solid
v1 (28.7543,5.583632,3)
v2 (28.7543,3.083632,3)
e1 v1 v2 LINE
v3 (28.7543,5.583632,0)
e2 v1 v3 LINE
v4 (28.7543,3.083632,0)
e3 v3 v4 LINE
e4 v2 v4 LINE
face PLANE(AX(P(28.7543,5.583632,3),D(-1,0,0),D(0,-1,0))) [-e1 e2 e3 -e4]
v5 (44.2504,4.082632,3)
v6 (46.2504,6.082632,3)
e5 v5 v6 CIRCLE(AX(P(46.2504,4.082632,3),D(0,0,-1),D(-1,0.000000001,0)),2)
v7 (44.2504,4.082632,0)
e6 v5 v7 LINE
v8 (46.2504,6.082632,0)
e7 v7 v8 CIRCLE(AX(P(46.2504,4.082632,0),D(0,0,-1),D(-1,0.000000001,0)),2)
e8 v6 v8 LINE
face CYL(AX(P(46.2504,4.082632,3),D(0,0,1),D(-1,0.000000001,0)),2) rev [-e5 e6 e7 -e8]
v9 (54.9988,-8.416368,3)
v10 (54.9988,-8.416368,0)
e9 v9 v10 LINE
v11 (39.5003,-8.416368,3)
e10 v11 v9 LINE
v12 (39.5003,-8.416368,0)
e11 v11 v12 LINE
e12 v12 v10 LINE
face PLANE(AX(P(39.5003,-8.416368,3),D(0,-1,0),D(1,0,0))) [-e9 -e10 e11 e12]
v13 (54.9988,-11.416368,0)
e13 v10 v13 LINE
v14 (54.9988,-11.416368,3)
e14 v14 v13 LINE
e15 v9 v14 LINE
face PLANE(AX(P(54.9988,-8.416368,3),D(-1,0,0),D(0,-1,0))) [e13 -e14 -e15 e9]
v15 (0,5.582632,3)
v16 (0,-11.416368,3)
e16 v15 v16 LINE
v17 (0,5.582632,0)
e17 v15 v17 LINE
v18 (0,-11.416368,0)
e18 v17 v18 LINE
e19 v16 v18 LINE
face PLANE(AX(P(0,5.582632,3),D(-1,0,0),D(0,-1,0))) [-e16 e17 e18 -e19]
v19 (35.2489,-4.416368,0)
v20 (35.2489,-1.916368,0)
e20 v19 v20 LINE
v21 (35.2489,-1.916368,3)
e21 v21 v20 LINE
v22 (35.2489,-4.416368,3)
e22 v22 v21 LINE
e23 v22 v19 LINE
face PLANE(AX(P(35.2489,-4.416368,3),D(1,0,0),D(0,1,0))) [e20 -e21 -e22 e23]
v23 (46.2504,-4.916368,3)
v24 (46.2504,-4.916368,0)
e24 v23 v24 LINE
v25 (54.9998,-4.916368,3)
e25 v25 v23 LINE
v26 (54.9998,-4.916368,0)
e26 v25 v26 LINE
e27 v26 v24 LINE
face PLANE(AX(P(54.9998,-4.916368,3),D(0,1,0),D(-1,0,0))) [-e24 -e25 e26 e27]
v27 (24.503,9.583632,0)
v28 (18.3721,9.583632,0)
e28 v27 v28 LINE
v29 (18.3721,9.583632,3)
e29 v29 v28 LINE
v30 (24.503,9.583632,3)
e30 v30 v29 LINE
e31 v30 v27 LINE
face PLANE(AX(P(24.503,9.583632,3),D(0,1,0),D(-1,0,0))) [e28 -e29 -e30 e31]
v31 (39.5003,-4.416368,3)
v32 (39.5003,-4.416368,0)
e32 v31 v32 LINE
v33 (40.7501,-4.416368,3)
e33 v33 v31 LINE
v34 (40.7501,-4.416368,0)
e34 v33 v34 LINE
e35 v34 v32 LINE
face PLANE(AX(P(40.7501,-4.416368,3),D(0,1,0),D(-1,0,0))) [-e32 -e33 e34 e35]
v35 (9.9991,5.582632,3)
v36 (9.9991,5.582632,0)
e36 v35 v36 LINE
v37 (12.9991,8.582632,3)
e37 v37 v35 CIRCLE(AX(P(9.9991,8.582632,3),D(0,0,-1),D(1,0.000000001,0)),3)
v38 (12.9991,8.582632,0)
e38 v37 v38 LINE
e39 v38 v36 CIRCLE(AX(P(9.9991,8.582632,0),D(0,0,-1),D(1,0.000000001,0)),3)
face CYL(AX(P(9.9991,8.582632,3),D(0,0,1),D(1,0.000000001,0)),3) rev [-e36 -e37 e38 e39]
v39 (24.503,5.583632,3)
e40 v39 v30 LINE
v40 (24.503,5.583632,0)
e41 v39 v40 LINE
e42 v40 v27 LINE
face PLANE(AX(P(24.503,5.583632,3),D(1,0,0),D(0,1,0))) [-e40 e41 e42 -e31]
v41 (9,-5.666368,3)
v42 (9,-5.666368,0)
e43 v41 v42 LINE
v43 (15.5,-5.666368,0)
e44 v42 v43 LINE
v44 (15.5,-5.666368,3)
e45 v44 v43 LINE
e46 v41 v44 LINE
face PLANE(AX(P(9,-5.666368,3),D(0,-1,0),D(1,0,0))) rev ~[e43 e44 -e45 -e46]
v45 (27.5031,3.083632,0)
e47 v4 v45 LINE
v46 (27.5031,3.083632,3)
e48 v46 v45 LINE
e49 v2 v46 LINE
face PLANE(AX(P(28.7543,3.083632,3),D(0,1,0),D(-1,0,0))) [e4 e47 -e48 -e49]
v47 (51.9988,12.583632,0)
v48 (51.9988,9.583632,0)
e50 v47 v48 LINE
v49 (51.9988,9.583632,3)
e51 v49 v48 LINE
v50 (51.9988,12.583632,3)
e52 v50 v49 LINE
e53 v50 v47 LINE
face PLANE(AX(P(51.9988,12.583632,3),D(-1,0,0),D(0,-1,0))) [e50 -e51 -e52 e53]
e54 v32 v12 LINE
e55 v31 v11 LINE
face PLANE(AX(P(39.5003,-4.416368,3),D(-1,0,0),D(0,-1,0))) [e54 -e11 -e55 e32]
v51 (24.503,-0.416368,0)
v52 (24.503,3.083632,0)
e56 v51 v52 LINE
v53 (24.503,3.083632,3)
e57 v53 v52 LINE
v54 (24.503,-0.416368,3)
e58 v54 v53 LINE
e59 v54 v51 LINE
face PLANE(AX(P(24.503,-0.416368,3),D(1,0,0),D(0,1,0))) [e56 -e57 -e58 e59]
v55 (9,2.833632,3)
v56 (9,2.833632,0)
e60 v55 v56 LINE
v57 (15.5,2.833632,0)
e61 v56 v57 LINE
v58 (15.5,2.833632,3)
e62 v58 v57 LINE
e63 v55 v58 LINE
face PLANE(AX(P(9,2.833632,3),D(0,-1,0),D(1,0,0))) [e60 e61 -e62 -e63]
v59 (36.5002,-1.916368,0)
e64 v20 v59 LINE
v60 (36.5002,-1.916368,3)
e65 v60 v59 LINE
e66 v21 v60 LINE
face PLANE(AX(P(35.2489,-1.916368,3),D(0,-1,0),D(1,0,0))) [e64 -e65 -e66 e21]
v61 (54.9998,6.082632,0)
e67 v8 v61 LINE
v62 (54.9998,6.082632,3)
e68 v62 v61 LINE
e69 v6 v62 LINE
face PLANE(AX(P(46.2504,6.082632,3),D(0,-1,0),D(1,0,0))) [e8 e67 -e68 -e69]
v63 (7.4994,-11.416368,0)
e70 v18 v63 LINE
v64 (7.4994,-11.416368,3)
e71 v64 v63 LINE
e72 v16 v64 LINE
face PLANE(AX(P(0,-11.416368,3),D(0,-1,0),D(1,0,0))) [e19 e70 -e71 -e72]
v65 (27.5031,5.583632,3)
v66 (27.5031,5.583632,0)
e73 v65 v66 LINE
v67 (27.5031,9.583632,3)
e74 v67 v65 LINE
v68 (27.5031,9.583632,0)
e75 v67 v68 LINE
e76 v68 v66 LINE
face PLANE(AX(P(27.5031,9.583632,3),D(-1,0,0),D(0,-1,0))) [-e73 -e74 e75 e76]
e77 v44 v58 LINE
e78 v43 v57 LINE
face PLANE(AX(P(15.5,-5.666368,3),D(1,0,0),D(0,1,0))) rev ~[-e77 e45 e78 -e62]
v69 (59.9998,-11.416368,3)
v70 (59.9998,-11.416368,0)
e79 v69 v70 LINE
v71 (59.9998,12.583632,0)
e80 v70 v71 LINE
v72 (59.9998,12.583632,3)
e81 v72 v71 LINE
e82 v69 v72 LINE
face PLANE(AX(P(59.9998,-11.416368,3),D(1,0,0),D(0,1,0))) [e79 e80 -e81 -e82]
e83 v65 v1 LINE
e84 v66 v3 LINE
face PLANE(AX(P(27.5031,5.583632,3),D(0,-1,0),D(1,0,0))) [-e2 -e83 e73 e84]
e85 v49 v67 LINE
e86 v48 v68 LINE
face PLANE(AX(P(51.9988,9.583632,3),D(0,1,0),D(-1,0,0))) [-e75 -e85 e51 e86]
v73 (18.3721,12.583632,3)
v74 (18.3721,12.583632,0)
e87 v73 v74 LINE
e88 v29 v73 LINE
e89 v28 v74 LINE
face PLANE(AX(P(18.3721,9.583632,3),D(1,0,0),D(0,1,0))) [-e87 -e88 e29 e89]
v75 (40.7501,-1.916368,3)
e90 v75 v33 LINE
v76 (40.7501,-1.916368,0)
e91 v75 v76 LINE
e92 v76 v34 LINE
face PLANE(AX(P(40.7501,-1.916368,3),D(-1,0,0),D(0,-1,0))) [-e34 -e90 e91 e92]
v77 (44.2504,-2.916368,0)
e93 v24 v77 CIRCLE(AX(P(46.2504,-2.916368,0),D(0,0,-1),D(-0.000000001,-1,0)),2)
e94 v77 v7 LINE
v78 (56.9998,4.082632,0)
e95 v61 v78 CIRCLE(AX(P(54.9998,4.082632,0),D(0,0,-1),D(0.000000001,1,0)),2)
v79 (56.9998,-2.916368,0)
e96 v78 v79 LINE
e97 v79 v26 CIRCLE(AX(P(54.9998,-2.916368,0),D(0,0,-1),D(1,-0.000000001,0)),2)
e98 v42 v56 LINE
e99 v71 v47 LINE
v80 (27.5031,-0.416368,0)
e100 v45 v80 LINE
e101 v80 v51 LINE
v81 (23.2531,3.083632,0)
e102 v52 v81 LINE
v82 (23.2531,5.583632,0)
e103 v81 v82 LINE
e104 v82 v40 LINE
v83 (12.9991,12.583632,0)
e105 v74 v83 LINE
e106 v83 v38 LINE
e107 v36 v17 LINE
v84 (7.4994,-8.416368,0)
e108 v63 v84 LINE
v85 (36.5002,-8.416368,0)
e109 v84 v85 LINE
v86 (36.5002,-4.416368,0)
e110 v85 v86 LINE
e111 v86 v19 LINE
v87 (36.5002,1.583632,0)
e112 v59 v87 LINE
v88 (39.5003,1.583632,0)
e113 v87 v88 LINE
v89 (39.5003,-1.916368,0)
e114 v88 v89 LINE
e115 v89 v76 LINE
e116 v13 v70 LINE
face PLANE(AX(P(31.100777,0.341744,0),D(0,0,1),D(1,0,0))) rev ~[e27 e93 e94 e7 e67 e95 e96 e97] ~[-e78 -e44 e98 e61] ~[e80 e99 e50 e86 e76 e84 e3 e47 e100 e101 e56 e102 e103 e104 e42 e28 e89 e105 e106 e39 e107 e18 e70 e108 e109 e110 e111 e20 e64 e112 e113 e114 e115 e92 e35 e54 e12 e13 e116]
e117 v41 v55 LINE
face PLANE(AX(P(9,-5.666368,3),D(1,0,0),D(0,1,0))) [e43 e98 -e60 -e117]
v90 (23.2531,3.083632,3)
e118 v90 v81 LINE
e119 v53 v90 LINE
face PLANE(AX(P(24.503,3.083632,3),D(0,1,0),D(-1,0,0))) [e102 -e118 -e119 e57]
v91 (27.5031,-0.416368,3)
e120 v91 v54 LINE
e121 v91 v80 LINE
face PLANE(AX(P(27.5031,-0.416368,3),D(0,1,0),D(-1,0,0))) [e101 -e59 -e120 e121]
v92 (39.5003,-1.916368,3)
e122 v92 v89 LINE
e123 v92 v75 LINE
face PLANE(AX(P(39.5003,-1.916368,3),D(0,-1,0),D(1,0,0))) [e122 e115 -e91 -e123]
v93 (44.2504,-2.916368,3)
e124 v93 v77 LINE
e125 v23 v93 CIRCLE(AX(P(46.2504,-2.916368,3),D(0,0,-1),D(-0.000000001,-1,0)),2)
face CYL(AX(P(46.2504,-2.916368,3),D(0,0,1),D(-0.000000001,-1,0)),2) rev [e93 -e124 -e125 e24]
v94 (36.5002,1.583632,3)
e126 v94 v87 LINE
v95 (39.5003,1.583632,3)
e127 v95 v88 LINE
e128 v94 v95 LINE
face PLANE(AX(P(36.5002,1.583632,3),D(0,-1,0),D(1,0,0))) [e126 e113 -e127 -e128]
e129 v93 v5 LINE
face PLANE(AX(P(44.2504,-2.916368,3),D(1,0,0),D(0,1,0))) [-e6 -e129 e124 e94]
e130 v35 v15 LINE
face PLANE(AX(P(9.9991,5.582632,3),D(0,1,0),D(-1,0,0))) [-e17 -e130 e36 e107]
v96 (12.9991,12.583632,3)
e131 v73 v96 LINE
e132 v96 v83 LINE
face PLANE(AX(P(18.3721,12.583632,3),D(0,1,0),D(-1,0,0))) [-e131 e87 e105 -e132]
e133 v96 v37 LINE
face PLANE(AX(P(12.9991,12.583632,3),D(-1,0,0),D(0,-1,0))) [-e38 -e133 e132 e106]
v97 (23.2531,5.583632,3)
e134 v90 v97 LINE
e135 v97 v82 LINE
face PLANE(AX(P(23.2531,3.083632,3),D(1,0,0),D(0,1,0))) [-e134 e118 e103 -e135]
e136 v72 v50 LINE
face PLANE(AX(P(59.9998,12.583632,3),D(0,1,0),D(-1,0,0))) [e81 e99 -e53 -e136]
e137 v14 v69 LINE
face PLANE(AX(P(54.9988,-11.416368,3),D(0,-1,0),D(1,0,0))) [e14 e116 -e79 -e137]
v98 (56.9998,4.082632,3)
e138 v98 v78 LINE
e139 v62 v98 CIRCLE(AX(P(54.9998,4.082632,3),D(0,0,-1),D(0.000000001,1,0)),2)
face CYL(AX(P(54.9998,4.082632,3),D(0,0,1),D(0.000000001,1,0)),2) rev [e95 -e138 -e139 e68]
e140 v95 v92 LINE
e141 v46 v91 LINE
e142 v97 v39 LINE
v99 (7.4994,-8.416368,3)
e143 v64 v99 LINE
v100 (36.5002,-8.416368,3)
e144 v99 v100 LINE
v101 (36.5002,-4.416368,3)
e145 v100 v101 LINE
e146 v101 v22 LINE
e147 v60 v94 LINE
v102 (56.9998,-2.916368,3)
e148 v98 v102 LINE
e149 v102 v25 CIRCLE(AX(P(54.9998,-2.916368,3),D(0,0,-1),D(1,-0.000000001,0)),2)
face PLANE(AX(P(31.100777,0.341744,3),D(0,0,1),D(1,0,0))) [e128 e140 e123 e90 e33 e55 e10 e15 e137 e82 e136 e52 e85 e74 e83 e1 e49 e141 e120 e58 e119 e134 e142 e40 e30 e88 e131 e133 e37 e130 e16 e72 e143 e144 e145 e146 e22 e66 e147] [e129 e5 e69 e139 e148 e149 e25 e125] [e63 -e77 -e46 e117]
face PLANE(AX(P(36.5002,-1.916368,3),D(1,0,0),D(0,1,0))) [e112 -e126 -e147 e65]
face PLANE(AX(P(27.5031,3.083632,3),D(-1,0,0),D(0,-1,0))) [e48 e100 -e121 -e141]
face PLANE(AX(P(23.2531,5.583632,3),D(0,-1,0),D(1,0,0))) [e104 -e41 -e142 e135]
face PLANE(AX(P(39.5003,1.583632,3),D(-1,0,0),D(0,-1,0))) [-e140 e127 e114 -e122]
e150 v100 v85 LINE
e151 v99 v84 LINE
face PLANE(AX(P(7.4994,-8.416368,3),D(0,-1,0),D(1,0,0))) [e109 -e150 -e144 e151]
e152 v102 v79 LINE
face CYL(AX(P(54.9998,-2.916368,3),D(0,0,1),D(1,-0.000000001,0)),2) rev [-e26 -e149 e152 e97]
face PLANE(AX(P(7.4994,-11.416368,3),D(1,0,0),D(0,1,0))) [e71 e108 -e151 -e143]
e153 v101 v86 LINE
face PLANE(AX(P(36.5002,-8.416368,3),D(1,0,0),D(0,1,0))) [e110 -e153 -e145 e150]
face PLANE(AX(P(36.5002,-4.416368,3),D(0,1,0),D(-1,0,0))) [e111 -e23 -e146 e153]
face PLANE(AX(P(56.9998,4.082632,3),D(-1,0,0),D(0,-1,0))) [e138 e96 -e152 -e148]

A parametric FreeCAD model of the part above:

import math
import FreeCAD as App
import Part
import Sketcher


def add_polygon(sketch, points):
    """Adds a closed chain of lines whose ends are joined by coincident constraints."""
    first, n = sketch.GeometryCount, len(points)
    for a, b in zip(points, points[1:] + points[:1]):
        sketch.addGeometry(Part.LineSegment(App.Vector(*a, 0), App.Vector(*b, 0)), False)
    for i in range(n):
        sketch.addConstraint(Sketcher.Constraint("Coincident", first + i, 2, first + (i + 1) % n, 1))

doc = App.newDocument("Part")
body = doc.addObject("PartDesign::Body", "Body")

sketch1 = doc.addObject("Sketcher::SketchObject", "Sketch")
body.addObject(sketch1)
sketch1.AttachmentSupport = (doc.XY_Plane, [""])
sketch1.MapMode = "FlatFace"
sketch1.AttachmentOffset = App.Placement(App.Vector(0, 0, 3), App.Rotation())
sketch1.addGeometry(Part.LineSegment(App.Vector(7.5, -8.4, 0), App.Vector(36.5, -8.4, 0)), False)
sketch1.addGeometry(Part.LineSegment(App.Vector(36.5, -8.4, 0), App.Vector(36.5, -4.4, 0)), False)
sketch1.addGeometry(Part.LineSegment(App.Vector(36.5, -4.4, 0), App.Vector(35.2, -4.4, 0)), False)
sketch1.addGeometry(Part.LineSegment(App.Vector(35.2, -4.4, 0), App.Vector(35.2, -1.9, 0)), False)
sketch1.addGeometry(Part.LineSegment(App.Vector(35.2, -1.9, 0), App.Vector(36.5, -1.9, 0)), False)
sketch1.addGeometry(Part.LineSegment(App.Vector(36.5, -1.9, 0), App.Vector(36.5, 1.6, 0)), False)
sketch1.addGeometry(Part.LineSegment(App.Vector(36.5, 1.6, 0), App.Vector(39.5, 1.6, 0)), False)
sketch1.addGeometry(Part.LineSegment(App.Vector(39.5, 1.6, 0), App.Vector(39.5, -1.9, 0)), False)
sketch1.addGeometry(Part.LineSegment(App.Vector(39.5, -1.9, 0), App.Vector(40.8, -1.9, 0)), False)
sketch1.addGeometry(Part.LineSegment(App.Vector(40.8, -1.9, 0), App.Vector(40.8, -4.4, 0)), False)
sketch1.addGeometry(Part.LineSegment(App.Vector(40.8, -4.4, 0), App.Vector(39.5, -4.4, 0)), False)
sketch1.addGeometry(Part.LineSegment(App.Vector(39.5, -4.4, 0), App.Vector(39.5, -8.4, 0)), False)
sketch1.addGeometry(Part.LineSegment(App.Vector(39.5, -8.4, 0), App.Vector(55, -8.4, 0)), False)
sketch1.addGeometry(Part.LineSegment(App.Vector(55, -8.4, 0), App.Vector(55, -11.4, 0)), False)
sketch1.addGeometry(Part.LineSegment(App.Vector(55, -11.4, 0), App.Vector(60, -11.4, 0)), False)
sketch1.addGeometry(Part.LineSegment(App.Vector(60, -11.4, 0), App.Vector(60, 12.6, 0)), False)
sketch1.addGeometry(Part.LineSegment(App.Vector(60, 12.6, 0), App.Vector(52, 12.6, 0)), False)
sketch1.addGeometry(Part.LineSegment(App.Vector(52, 12.6, 0), App.Vector(52, 9.6, 0)), False)
sketch1.addGeometry(Part.LineSegment(App.Vector(52, 9.6, 0), App.Vector(27.5, 9.6, 0)), False)
sketch1.addGeometry(Part.LineSegment(App.Vector(27.5, 9.6, 0), App.Vector(27.5, 5.6, 0)), False)
sketch1.addGeometry(Part.LineSegment(App.Vector(27.5, 5.6, 0), App.Vector(28.8, 5.6, 0)), False)
sketch1.addGeometry(Part.LineSegment(App.Vector(28.8, 5.6, 0), App.Vector(28.8, 3.1, 0)), False)
sketch1.addGeometry(Part.LineSegment(App.Vector(28.8, 3.1, 0), App.Vector(27.5, 3.1, 0)), False)
sketch1.addGeometry(Part.LineSegment(App.Vector(27.5, 3.1, 0), App.Vector(27.5, -0.4, 0)), False)
sketch1.addGeometry(Part.LineSegment(App.Vector(27.5, -0.4, 0), App.Vector(24.5, -0.4, 0)), False)
sketch1.addGeometry(Part.LineSegment(App.Vector(24.5, -0.4, 0), App.Vector(24.5, 3.1, 0)), False)
sketch1.addGeometry(Part.LineSegment(App.Vector(24.5, 3.1, 0), App.Vector(23.3, 3.1, 0)), False)
sketch1.addGeometry(Part.LineSegment(App.Vector(23.3, 3.1, 0), App.Vector(23.3, 5.6, 0)), False)
sketch1.addGeometry(Part.LineSegment(App.Vector(23.3, 5.6, 0), App.Vector(24.5, 5.6, 0)), False)
sketch1.addGeometry(Part.LineSegment(App.Vector(24.5, 5.6, 0), App.Vector(24.5, 9.6, 0)), False)
sketch1.addGeometry(Part.LineSegment(App.Vector(24.5, 9.6, 0), App.Vector(18.4, 9.6, 0)), False)
sketch1.addGeometry(Part.LineSegment(App.Vector(18.4, 9.6, 0), App.Vector(18.4, 12.6, 0)), False)
sketch1.addGeometry(Part.LineSegment(App.Vector(18.4, 12.6, 0), App.Vector(13, 12.6, 0)), False)
sketch1.addGeometry(Part.LineSegment(App.Vector(13, 12.6, 0), App.Vector(13, 8.6, 0)), False)
sketch1.addGeometry(Part.ArcOfCircle(Part.Circle(App.Vector(10, 8.6, 0), App.Vector(0, 0, 1), 3), math.radians(-90), math.radians(0)), False)
sketch1.addGeometry(Part.LineSegment(App.Vector(10, 5.6, 0), App.Vector(0, 5.6, 0)), False)
sketch1.addGeometry(Part.LineSegment(App.Vector(0, 5.6, 0), App.Vector(0, -11.4, 0)), False)
sketch1.addGeometry(Part.LineSegment(App.Vector(0, -11.4, 0), App.Vector(7.5, -11.4, 0)), False)
sketch1.addGeometry(Part.LineSegment(App.Vector(7.5, -11.4, 0), App.Vector(7.5, -8.4, 0)), False)
add_polygon(sketch1, [(15.5, -5.7), (9, -5.7), (9, 2.8), (15.5, 2.8)])
sketch1.addGeometry(Part.ArcOfCircle(Part.Circle(App.Vector(55, 4.1, 0), App.Vector(0, 0, 1), 2), math.radians(0), math.radians(90)), False)
sketch1.addGeometry(Part.LineSegment(App.Vector(57, 4.1, 0), App.Vector(57, -2.9, 0)), False)
sketch1.addGeometry(Part.ArcOfCircle(Part.Circle(App.Vector(55, -2.9, 0), App.Vector(0, 0, 1), 2), math.radians(-90), math.radians(0)), False)
sketch1.addGeometry(Part.LineSegment(App.Vector(55, -4.9, 0), App.Vector(46.3, -4.9, 0)), False)
sketch1.addGeometry(Part.ArcOfCircle(Part.Circle(App.Vector(46.3, -2.9, 0), App.Vector(0, 0, 1), 2), math.radians(-180), math.radians(-90)), False)
sketch1.addGeometry(Part.LineSegment(App.Vector(44.3, -2.9, 0), App.Vector(44.3, 4.1, 0)), False)
sketch1.addGeometry(Part.ArcOfCircle(Part.Circle(App.Vector(46.3, 4.1, 0), App.Vector(0, 0, 1), 2), math.radians(90), math.radians(180)), False)
sketch1.addGeometry(Part.LineSegment(App.Vector(46.3, 6.1, 0), App.Vector(55, 6.1, 0)), False)
sketch1.addConstraint([
    Sketcher.Constraint("Coincident", 0, 2, 1, 1),
    Sketcher.Constraint("Coincident", 1, 2, 2, 1),
    Sketcher.Constraint("Coincident", 2, 2, 3, 1),
    Sketcher.Constraint("Coincident", 3, 2, 4, 1),
    Sketcher.Constraint("Coincident", 4, 2, 5, 1),
    Sketcher.Constraint("Coincident", 5, 2, 6, 1),
    Sketcher.Constraint("Coincident", 6, 2, 7, 1),
    Sketcher.Constraint("Coincident", 7, 2, 8, 1),
    Sketcher.Constraint("Coincident", 8, 2, 9, 1),
    Sketcher.Constraint("Coincident", 9, 2, 10, 1),
    Sketcher.Constraint("Coincident", 10, 2, 11, 1),
    Sketcher.Constraint("Coincident", 11, 2, 12, 1),
    Sketcher.Constraint("Coincident", 12, 2, 13, 1),
    Sketcher.Constraint("Coincident", 13, 2, 14, 1),
    Sketcher.Constraint("Coincident", 14, 2, 15, 1),
    Sketcher.Constraint("Coincident", 15, 2, 16, 1),
    Sketcher.Constraint("Coincident", 16, 2, 17, 1),
    Sketcher.Constraint("Coincident", 17, 2, 18, 1),
    Sketcher.Constraint("Coincident", 18, 2, 19, 1),
    Sketcher.Constraint("Coincident", 19, 2, 20, 1),
    Sketcher.Constraint("Coincident", 20, 2, 21, 1),
    Sketcher.Constraint("Coincident", 21, 2, 22, 1),
    Sketcher.Constraint("Coincident", 22, 2, 23, 1),
    Sketcher.Constraint("Coincident", 23, 2, 24, 1),
    Sketcher.Constraint("Coincident", 24, 2, 25, 1),
    Sketcher.Constraint("Coincident", 25, 2, 26, 1),
    Sketcher.Constraint("Coincident", 26, 2, 27, 1),
    Sketcher.Constraint("Coincident", 27, 2, 28, 1),
    Sketcher.Constraint("Coincident", 28, 2, 29, 1),
    Sketcher.Constraint("Coincident", 29, 2, 30, 1),
    Sketcher.Constraint("Coincident", 30, 2, 31, 1),
    Sketcher.Constraint("Coincident", 31, 2, 32, 1),
    Sketcher.Constraint("Coincident", 32, 2, 33, 1),
    Sketcher.Constraint("Tangent", 33, 2, 34, 2),
    Sketcher.Constraint("Tangent", 34, 1, 35, 1),
    Sketcher.Constraint("Coincident", 35, 2, 36, 1),
    Sketcher.Constraint("Coincident", 36, 2, 37, 1),
    Sketcher.Constraint("Coincident", 37, 2, 38, 1),
    Sketcher.Constraint("Coincident", 38, 2, 0, 1),
    Sketcher.Constraint("Tangent", 43, 1, 44, 1),
    Sketcher.Constraint("Tangent", 44, 2, 45, 2),
    Sketcher.Constraint("Tangent", 45, 1, 46, 1),
    Sketcher.Constraint("Tangent", 46, 2, 47, 2),
    Sketcher.Constraint("Tangent", 47, 1, 48, 1),
    Sketcher.Constraint("Tangent", 48, 2, 49, 2),
    Sketcher.Constraint("Tangent", 49, 1, 50, 1),
    Sketcher.Constraint("Tangent", 50, 2, 43, 2),
    Sketcher.Constraint("Horizontal", 0),
    Sketcher.Constraint("Vertical", 1),
    Sketcher.Constraint("Horizontal", 2),
    Sketcher.Constraint("Vertical", 3),
    Sketcher.Constraint("Horizontal", 4),
    Sketcher.Constraint("Vertical", 5),
    Sketcher.Constraint("Horizontal", 6),
    Sketcher.Constraint("Vertical", 7),
    Sketcher.Constraint("Horizontal", 8),
    Sketcher.Constraint("Vertical", 9),
    Sketcher.Constraint("Horizontal", 10),
    Sketcher.Constraint("Vertical", 11),
    Sketcher.Constraint("Horizontal", 12),
    Sketcher.Constraint("Vertical", 13),
    Sketcher.Constraint("Horizontal", 14),
    Sketcher.Constraint("Vertical", 15),
    Sketcher.Constraint("Horizontal", 16),
    Sketcher.Constraint("Vertical", 17),
    Sketcher.Constraint("Horizontal", 18),
    Sketcher.Constraint("Vertical", 19),
    Sketcher.Constraint("Horizontal", 20),
    Sketcher.Constraint("Vertical", 21),
    Sketcher.Constraint("Horizontal", 22),
    Sketcher.Constraint("Vertical", 23),
    Sketcher.Constraint("Horizontal", 24),
    Sketcher.Constraint("Vertical", 25),
    Sketcher.Constraint("Horizontal", 26),
    Sketcher.Constraint("Vertical", 27),
    Sketcher.Constraint("Horizontal", 28),
    Sketcher.Constraint("Vertical", 29),
    Sketcher.Constraint("Horizontal", 30),
    Sketcher.Constraint("Vertical", 31),
    Sketcher.Constraint("Horizontal", 32),
    Sketcher.Constraint("Vertical", 33),
    Sketcher.Constraint("Horizontal", 35),
    Sketcher.Constraint("Vertical", 36),
    Sketcher.Constraint("Horizontal", 37),
    Sketcher.Constraint("Vertical", 38),
    Sketcher.Constraint("Horizontal", 39),
    Sketcher.Constraint("Vertical", 40),
    Sketcher.Constraint("Horizontal", 41),
    Sketcher.Constraint("Vertical", 42),
    Sketcher.Constraint("Vertical", 44),
    Sketcher.Constraint("Horizontal", 46),
    Sketcher.Constraint("Vertical", 48),
    Sketcher.Constraint("Horizontal", 50),
    Sketcher.Constraint("Equal", 43, 45),
    Sketcher.Constraint("Equal", 45, 47),
    Sketcher.Constraint("Equal", 47, 49),
    Sketcher.Constraint("PointOnObject", 35, 2, -2),
    Sketcher.Constraint("Horizontal", 4, 2, 7, 2),
    Sketcher.Constraint("Horizontal", 2, 2, 9, 2),
    Sketcher.Constraint("Horizontal", 0, 2, 11, 2),
    Sketcher.Constraint("Horizontal", 22, 2, 25, 2),
    Sketcher.Constraint("Horizontal", 20, 2, 27, 2),
    Sketcher.Constraint("Horizontal", 18, 2, 29, 2),
    Sketcher.Constraint("Horizontal", 16, 2, 31, 2),
    Sketcher.Constraint("Horizontal", 14, 2, 36, 2),
    Sketcher.Constraint("Vertical", 1, 2, 4, 2),
    Sketcher.Constraint("Vertical", 7, 2, 10, 2),
    Sketcher.Constraint("Vertical", 19, 2, 22, 2),
    Sketcher.Constraint("Vertical", 25, 2, 28, 2),
    Sketcher.Constraint("Equal", 6, 24),
    Sketcher.Constraint("Equal", 13, 17),
    Sketcher.Constraint("Equal", 11, 19),
    Sketcher.Constraint("Equal", 9, 21),
    Sketcher.Constraint("Equal", 7, 23),
    Sketcher.Constraint("Radius", 34, 3.0),
    Sketcher.Constraint("Radius", 43, 2.0),
    Sketcher.Constraint("DistanceY", 1, 1, 1, 2, 4.0),
    Sketcher.Constraint("DistanceY", 13, 2, 13, 1, 3.0),
    Sketcher.Constraint("DistanceY", 15, 1, 15, 2, 24.0),
    Sketcher.Constraint("DistanceX", 39, 2, 39, 1, 6.5),
    Sketcher.Constraint("DistanceY", 3, 1, 3, 2, 2.5),
    Sketcher.Constraint("DistanceY", 5, 1, 5, 2, 3.5),
    Sketcher.Constraint("DistanceY", 40, 1, 40, 2, 8.5),
    Sketcher.Constraint("DistanceX", -1, 1, 39, 2, 9.0),
    Sketcher.Constraint("DistanceY", 47, 3, 3, 2, 1.0),
    Sketcher.Constraint("DistanceX", 45, 3, 14, 2, 5.0),
    Sketcher.Constraint("DistanceY", 43, 3, 34, 3, 4.5),
    Sketcher.Constraint("DistanceX", 14, 1, 14, 2, 5.001),
    Sketcher.Constraint("DistanceX", 16, 2, 16, 1, 8.001),
    Sketcher.Constraint("DistanceX", 32, 2, 32, 1, 5.373),
    Sketcher.Constraint("DistanceY", 33, 2, 33, 1, 4.001),
    Sketcher.Constraint("DistanceX", 26, 2, 22, 2, 4.25),
    Sketcher.Constraint("DistanceY", 38, 2, 39, 2, 2.75),
    Sketcher.Constraint("DistanceX", 0, 1, 0, 2, 29.0008),
    Sketcher.Constraint("DistanceX", 2, 2, 2, 1, 1.2513),
    Sketcher.Constraint("DistanceX", 6, 1, 6, 2, 3.0001),
    Sketcher.Constraint("DistanceX", 8, 1, 8, 2, 1.2498),
    Sketcher.Constraint("DistanceX", 12, 1, 12, 2, 15.4985),
    Sketcher.Constraint("DistanceX", 18, 2, 18, 1, 24.4957),
    Sketcher.Constraint("DistanceX", 20, 1, 20, 2, 1.2512),
    Sketcher.Constraint("DistanceX", 30, 2, 30, 1, 6.1309),
    Sketcher.Constraint("DistanceX", 35, 2, 35, 1, 9.9991),
    Sketcher.Constraint("DistanceX", 46, 2, 46, 1, 8.7494),
    Sketcher.Constraint("DistanceY", -1, 1, 34, 3, 8.582632),
])
pad1 = doc.addObject("PartDesign::Pad", "Pad")
body.addObject(pad1)
pad1.Profile = sketch1
pad1.Length = 3
pad1.Reversed = True

doc.recompute()
